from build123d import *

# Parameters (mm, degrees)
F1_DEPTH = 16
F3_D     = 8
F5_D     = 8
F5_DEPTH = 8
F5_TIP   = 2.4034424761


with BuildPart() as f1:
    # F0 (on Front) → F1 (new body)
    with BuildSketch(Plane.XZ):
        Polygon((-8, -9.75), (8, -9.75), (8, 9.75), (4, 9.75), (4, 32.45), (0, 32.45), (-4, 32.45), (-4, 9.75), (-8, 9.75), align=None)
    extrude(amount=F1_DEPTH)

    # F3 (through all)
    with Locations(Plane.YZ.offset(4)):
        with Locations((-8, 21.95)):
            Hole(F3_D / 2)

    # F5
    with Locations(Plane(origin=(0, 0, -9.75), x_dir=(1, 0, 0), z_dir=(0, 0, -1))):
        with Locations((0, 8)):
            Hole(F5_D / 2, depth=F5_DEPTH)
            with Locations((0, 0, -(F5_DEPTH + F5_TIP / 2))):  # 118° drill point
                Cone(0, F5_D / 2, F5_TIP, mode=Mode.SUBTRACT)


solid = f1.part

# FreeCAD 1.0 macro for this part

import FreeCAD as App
import Part
import Sketcher


def add_polygon(sketch, points):
    """Adds a closed chain of lines whose ends are joined by coincident constraints."""
    first, n = sketch.GeometryCount, len(points)
    for a, b in zip(points, points[1:] + points[:1]):
        sketch.addGeometry(Part.LineSegment(App.Vector(*a, 0), App.Vector(*b, 0)), False)
    for i in range(n):
        sketch.addConstraint(Sketcher.Constraint("Coincident", first + i, 2, first + (i + 1) % n, 1))

doc = App.newDocument("Part")
body = doc.addObject("PartDesign::Body", "Body")

sketch1 = body.newObject("Sketcher::SketchObject", "Sketch")
sketch1.AttachmentSupport = (doc.getObject("XZ_Plane"), [""])
sketch1.MapMode = "FlatFace"
add_polygon(sketch1, [(-8, -9.8), (8, -9.8), (8, 9.8), (4, 9.8), (4, 32.5), (-4, 32.5), (-4, 9.8), (-8, 9.8)])
sketch1.addConstraint([
    Sketcher.Constraint("Horizontal", 0),
    Sketcher.Constraint("Vertical", 1),
    Sketcher.Constraint("Horizontal", 2),
    Sketcher.Constraint("Vertical", 3),
    Sketcher.Constraint("Horizontal", 4),
    Sketcher.Constraint("Vertical", 5),
    Sketcher.Constraint("Horizontal", 6),
    Sketcher.Constraint("Vertical", 7),
    Sketcher.Constraint("Symmetric", 0, 2, 6, 2, -1, 1),
    Sketcher.Constraint("Symmetric", 2, 2, 5, 2, -2),
    Sketcher.Constraint("DistanceX", 0, 1, 0, 2, 16.0),
    Sketcher.Constraint("DistanceX", 2, 2, 2, 1, 4.0),
    Sketcher.Constraint("DistanceY", 1, 1, 1, 2, 19.5),
    Sketcher.Constraint("DistanceY", 3, 1, 3, 2, 22.7),
])
pad1 = body.newObject("PartDesign::Pad", "Pad")
pad1.Profile = sketch1
pad1.Length = 16

sketch2 = body.newObject("Sketcher::SketchObject", "Sketch001")
sketch2.AttachmentSupport = (doc.getObject("YZ_Plane"), [""])
sketch2.MapMode = "FlatFace"
sketch2.AttachmentOffset = App.Placement(App.Vector(0, 0, 4), App.Rotation())
sketch2.addGeometry(Part.Circle(App.Vector(-8, 21.9, 0), App.Vector(0, 0, 1), 4), False)
sketch2.addConstraint([
    Sketcher.Constraint("Diameter", 0, 8.0),
    Sketcher.Constraint("DistanceX", 0, 3, -1, 1, 8.0),
    Sketcher.Constraint("DistanceY", -1, 1, 0, 3, 21.95),
])
doc.recompute()
hole = body.newObject("PartDesign::Hole", "Hole")
hole.Profile = sketch2
hole.ThreadType = "None"
hole.Diameter = 8
hole.DepthType = "ThroughAll"

sketch3 = body.newObject("Sketcher::SketchObject", "Sketch002")
sketch3.AttachmentSupport = (doc.getObject("XY_Plane"), [""])
sketch3.MapMode = "FlatFace"
sketch3.AttachmentOffset = App.Placement(App.Vector(0, 0, -9.75), App.Rotation())
sketch3.addGeometry(Part.Circle(App.Vector(0, -8, 0), App.Vector(0, 0, 1), 4), False)
sketch3.addConstraint([
    Sketcher.Constraint("PointOnObject", 0, 3, -2),
    Sketcher.Constraint("Diameter", 0, 8.0),
    Sketcher.Constraint("DistanceY", 0, 3, -1, 1, 8.0),
])
doc.recompute()
hole2 = body.newObject("PartDesign::Hole", "Hole001")
hole2.Profile = sketch3
hole2.ThreadType = "None"
hole2.Diameter = 8
hole2.DepthType = "Dimension"
hole2.Depth = 8
hole2.DrillPoint = "Angled"
hole2.DrillPointAngle = 118
hole2.Reversed = True

doc.recompute()
